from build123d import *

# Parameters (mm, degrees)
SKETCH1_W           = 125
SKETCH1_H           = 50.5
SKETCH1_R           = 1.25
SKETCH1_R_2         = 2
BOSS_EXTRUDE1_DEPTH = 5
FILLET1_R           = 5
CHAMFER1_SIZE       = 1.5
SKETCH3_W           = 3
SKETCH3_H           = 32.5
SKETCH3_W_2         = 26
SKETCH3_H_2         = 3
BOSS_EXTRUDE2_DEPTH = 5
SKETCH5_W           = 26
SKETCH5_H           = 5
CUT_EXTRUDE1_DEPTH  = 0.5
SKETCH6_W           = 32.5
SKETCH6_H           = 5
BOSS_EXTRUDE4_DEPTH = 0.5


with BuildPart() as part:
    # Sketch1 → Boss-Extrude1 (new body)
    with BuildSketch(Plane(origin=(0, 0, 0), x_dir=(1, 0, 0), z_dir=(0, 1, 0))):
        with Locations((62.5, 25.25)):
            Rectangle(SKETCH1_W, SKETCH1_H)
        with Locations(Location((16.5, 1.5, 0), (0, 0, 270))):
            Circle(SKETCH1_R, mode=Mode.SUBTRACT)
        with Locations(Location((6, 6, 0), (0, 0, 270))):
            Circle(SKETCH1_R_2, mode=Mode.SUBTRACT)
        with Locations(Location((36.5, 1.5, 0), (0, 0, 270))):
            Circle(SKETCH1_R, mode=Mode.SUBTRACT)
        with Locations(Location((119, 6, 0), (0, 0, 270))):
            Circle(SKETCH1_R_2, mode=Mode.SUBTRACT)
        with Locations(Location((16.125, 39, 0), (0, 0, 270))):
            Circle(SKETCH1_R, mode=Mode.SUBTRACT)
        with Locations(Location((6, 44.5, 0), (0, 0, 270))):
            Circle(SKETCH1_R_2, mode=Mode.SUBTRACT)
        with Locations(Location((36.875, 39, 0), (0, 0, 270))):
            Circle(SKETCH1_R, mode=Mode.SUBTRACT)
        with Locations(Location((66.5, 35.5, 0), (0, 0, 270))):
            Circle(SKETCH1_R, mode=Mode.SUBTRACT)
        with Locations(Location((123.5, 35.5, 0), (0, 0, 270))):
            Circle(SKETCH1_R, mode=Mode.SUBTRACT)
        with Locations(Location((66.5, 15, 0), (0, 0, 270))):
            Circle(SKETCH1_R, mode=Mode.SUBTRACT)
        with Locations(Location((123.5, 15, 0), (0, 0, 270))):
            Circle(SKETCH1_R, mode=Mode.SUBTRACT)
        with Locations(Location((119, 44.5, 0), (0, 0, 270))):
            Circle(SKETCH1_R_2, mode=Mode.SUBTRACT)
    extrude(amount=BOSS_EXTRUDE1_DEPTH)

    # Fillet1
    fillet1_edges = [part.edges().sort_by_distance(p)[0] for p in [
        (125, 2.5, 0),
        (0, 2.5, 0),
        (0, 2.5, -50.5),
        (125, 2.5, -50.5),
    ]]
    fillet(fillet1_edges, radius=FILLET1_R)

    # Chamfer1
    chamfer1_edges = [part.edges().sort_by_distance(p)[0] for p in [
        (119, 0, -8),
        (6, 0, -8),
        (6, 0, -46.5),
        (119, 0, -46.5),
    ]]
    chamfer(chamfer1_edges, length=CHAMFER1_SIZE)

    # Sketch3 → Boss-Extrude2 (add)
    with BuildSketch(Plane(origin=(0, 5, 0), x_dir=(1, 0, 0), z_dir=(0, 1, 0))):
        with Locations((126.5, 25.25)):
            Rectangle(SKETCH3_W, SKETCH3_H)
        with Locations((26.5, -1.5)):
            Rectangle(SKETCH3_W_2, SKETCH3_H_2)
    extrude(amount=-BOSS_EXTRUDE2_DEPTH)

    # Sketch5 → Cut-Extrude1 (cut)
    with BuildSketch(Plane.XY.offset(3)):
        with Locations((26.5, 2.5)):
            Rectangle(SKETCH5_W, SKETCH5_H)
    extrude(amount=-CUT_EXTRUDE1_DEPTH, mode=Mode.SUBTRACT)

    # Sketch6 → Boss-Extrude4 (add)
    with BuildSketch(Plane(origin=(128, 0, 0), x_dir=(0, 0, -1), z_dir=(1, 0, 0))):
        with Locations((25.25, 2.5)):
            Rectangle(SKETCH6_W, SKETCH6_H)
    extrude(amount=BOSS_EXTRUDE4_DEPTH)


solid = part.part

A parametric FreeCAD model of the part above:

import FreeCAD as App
import Part
import Sketcher
from FreeCAD import Vector
Q = App.Units.Quantity


def edges_at(feature, points):
    """Names of the edges that pass closest to the given points."""
    edges = feature.Shape.Edges
    near = lambda p: min(range(len(edges)), key=lambda i: edges[i].distToShape(Part.Vertex(*p))[0])
    return sorted({f"Edge{near(p) + 1}" for p in points})

doc = App.newDocument("Part")
params = doc.addObject("Spreadsheet::Sheet", "Params")
for row, (alias, value) in enumerate([
    ("sketch1_diameter", "4 mm"),
    ("sketch1_diameter2", "2.5 mm"),
    ("sketch1_width", "125 mm"),
    ("sketch1_height", "50.5 mm"),
    ("pad1_length", "5 mm"),
    ("fillet_radius", "5 mm"),
    ("chamfer_size", "1.5 mm"),
    ("sketch2_width", "3 mm"),
    ("sketch2_width2", "26 mm"),
    ("sketch2_height", "32.5 mm"),
    ("pad2_length", "5 mm"),
    ("sketch3_width", "26 mm"),
    ("sketch3_height", "5 mm"),
    ("pocket1_length", "0.5 mm"),
    ("sketch4_width", "5 mm"),
    ("sketch4_height", "32.5 mm"),
    ("pad3_length", "0.5 mm"),
], start=1):
    params.set(f"A{row}", alias)
    params.set(f"B{row}", "=" + value)
    params.setAlias(f"B{row}", alias)

body = doc.addObject("PartDesign::Body", "Body")

# Sketch on XZ plane
sketch1 = doc.addObject("Sketcher::SketchObject", "Sketch")
body.addObject(sketch1)
sketch1.AttachmentSupport = (doc.XZ_Plane, [""])
sketch1.MapMode = "FlatFace"
sketch1.addGeometry([
    Part.LineSegment(Vector(0, -50.5, 0), Vector(0, 0, 0)),  # 0
    Part.LineSegment(Vector(0, 0, 0), Vector(125, 0, 0)),  # 1
    Part.LineSegment(Vector(125, 0, 0), Vector(125, -50.5, 0)),  # 2
    Part.LineSegment(Vector(125, -50.5, 0), Vector(0, -50.5, 0)),  # 3
    Part.Circle(Vector(16.5, -1.5, 0), Vector(0, 0, 1), 1.2),  # 4
    Part.Circle(Vector(6, -6, 0), Vector(0, 0, 1), 2),  # 5
    Part.Circle(Vector(36.5, -1.5, 0), Vector(0, 0, 1), 1.2),  # 6
    Part.Circle(Vector(119, -6, 0), Vector(0, 0, 1), 2),  # 7
    Part.Circle(Vector(66.5, -15, 0), Vector(0, 0, 1), 1.2),  # 8
    Part.Circle(Vector(123.5, -15, 0), Vector(0, 0, 1), 1.2),  # 9
    Part.Circle(Vector(16.1, -39, 0), Vector(0, 0, 1), 1.2),  # 10
    Part.Circle(Vector(6, -44.5, 0), Vector(0, 0, 1), 2),  # 11
    Part.Circle(Vector(36.9, -39, 0), Vector(0, 0, 1), 1.2),  # 12
    Part.Circle(Vector(66.5, -35.5, 0), Vector(0, 0, 1), 1.2),  # 13
    Part.Circle(Vector(123.5, -35.5, 0), Vector(0, 0, 1), 1.2),  # 14
    Part.Circle(Vector(119, -44.5, 0), Vector(0, 0, 1), 2),  # 15
], False)
sketch1.addConstraint([
    Sketcher.Constraint("Coincident", 0, 2, 1, 1),
    Sketcher.Constraint("Coincident", 1, 2, 2, 1),
    Sketcher.Constraint("Coincident", 2, 2, 3, 1),
    Sketcher.Constraint("Coincident", 3, 2, 0, 1),
    Sketcher.Constraint("Vertical", 0),
    Sketcher.Constraint("Horizontal", 1),
    Sketcher.Constraint("Vertical", 2),
    Sketcher.Constraint("Horizontal", 3),
    Sketcher.Constraint("Coincident", 0, 2, -1, 1),
    Sketcher.Constraint("Equal", 4, 6),
    Sketcher.Constraint("Equal", 5, 7),
    Sketcher.Constraint("Equal", 6, 8),
    Sketcher.Constraint("Equal", 8, 9),
    Sketcher.Constraint("Equal", 9, 10),
    Sketcher.Constraint("Equal", 7, 11),
    Sketcher.Constraint("Equal", 10, 12),
    Sketcher.Constraint("Equal", 12, 13),
    Sketcher.Constraint("Equal", 13, 14),
    Sketcher.Constraint("Equal", 11, 15),
    Sketcher.Constraint("Horizontal", 4, 3, 6, 3),
    Sketcher.Constraint("Horizontal", 5, 3, 7, 3),
    Sketcher.Constraint("Horizontal", 8, 3, 9, 3),
    Sketcher.Constraint("Horizontal", 10, 3, 12, 3),
    Sketcher.Constraint("Horizontal", 13, 3, 14, 3),
    Sketcher.Constraint("Horizontal", 11, 3, 15, 3),
    Sketcher.Constraint("Vertical", 5, 3, 11, 3),
    Sketcher.Constraint("Vertical", 8, 3, 13, 3),
    Sketcher.Constraint("Vertical", 9, 3, 14, 3),
    Sketcher.Constraint("Vertical", 7, 3, 15, 3),
    Sketcher.Constraint("Diameter", 5, Q("4 mm")),
    Sketcher.Constraint("Diameter", 4, Q("2.5 mm")),
    Sketcher.Constraint("DistanceX", 1, 1, 1, 2, Q("125 mm")),
    Sketcher.Constraint("DistanceY", 0, 1, 0, 2, Q("50.5 mm")),
    Sketcher.Constraint("DistanceX", -1, 1, 5, 3, Q("6 mm")),
    Sketcher.Constraint("DistanceY", 5, 3, -1, 1, Q("6 mm")),
    Sketcher.Constraint("DistanceX", -1, 1, 7, 3, Q("119 mm")),
    Sketcher.Constraint("DistanceY", 8, 3, -1, 1, Q("15 mm")),
    Sketcher.Constraint("DistanceY", 10, 3, -1, 1, Q("39 mm")),
    Sketcher.Constraint("DistanceX", 4, 3, 6, 3, Q("20 mm")),
    Sketcher.Constraint("DistanceX", 6, 3, 8, 3, Q("30 mm")),
    Sketcher.Constraint("DistanceX", 8, 3, 9, 3, Q("57 mm")),
    Sketcher.Constraint("DistanceY", 11, 3, 4, 3, Q("43 mm")),
    Sketcher.Constraint("DistanceY", 13, 3, 6, 3, Q("34 mm")),
    Sketcher.Constraint("DistanceY", 2, 2, 15, 3, Q("6 mm")),
    Sketcher.Constraint("DistanceX", -1, 1, 4, 3, Q("16.5 mm")),
    Sketcher.Constraint("DistanceX", 10, 3, 12, 3, Q("20.75 mm")),
    Sketcher.Constraint("DistanceX", -1, 1, 10, 3, Q("16.125 mm")),
])
sketch1.setExpression("Constraints[29]", "Params.sketch1_diameter")
sketch1.setExpression("Constraints[30]", "Params.sketch1_diameter2")
sketch1.setExpression("Constraints[31]", "Params.sketch1_width")
sketch1.setExpression("Constraints[32]", "Params.sketch1_height")
pad1 = doc.addObject("PartDesign::Pad", "Pad")
body.addObject(pad1)
pad1.Profile = sketch1
pad1.setExpression("Length", "Params.pad1_length")
pad1.Reversed = True
doc.recompute()

fillet = doc.addObject("PartDesign::Fillet", "Fillet")
body.addObject(fillet)
fillet.Base = (pad1, edges_at(pad1, [
    (125, 2.5, 0),
    (0, 2.5, 0),
    (0, 2.5, -50.5),
    (125, 2.5, -50.5),
]))
fillet.setExpression("Radius", "Params.fillet_radius")
doc.recompute()

chamfer = doc.addObject("PartDesign::Chamfer", "Chamfer")
body.addObject(chamfer)
chamfer.Base = (fillet, edges_at(fillet, [
    (119, 0, -8),
    (6, 0, -8),
    (6, 0, -46.5),
    (119, 0, -46.5),
]))
chamfer.setExpression("Size", "Params.chamfer_size")

# Sketch on XZ plane
sketch2 = doc.addObject("Sketcher::SketchObject", "Sketch001")
body.addObject(sketch2)
sketch2.AttachmentSupport = (doc.XZ_Plane, [""])
sketch2.MapMode = "FlatFace"
sketch2.AttachmentOffset = App.Placement(Vector(0, 0, -5), App.Rotation())
sketch2.addGeometry([
    Part.LineSegment(Vector(125, -41.5, 0), Vector(125, -9, 0)),  # 0
    Part.LineSegment(Vector(125, -9, 0), Vector(128, -9, 0)),  # 1
    Part.LineSegment(Vector(128, -9, 0), Vector(128, -41.5, 0)),  # 2
    Part.LineSegment(Vector(128, -41.5, 0), Vector(125, -41.5, 0)),  # 3
    Part.LineSegment(Vector(13.5, 0, 0), Vector(13.5, 3, 0)),  # 4
    Part.LineSegment(Vector(13.5, 3, 0), Vector(39.5, 3, 0)),  # 5
    Part.LineSegment(Vector(39.5, 3, 0), Vector(39.5, 0, 0)),  # 6
    Part.LineSegment(Vector(39.5, 0, 0), Vector(13.5, 0, 0)),  # 7
], False)
sketch2.addConstraint([
    Sketcher.Constraint("Coincident", 0, 2, 1, 1),
    Sketcher.Constraint("Coincident", 1, 2, 2, 1),
    Sketcher.Constraint("Coincident", 2, 2, 3, 1),
    Sketcher.Constraint("Coincident", 3, 2, 0, 1),
    Sketcher.Constraint("Coincident", 4, 2, 5, 1),
    Sketcher.Constraint("Coincident", 5, 2, 6, 1),
    Sketcher.Constraint("Coincident", 6, 2, 7, 1),
    Sketcher.Constraint("Coincident", 7, 2, 4, 1),
    Sketcher.Constraint("Vertical", 0),
    Sketcher.Constraint("Horizontal", 1),
    Sketcher.Constraint("Vertical", 2),
    Sketcher.Constraint("Horizontal", 3),
    Sketcher.Constraint("Vertical", 4),
    Sketcher.Constraint("Horizontal", 5),
    Sketcher.Constraint("Vertical", 6),
    Sketcher.Constraint("Horizontal", 7),
    Sketcher.Constraint("PointOnObject", 6, 2, -1),
    Sketcher.Constraint("Equal", 3, 4),
    Sketcher.Constraint("DistanceX", 1, 1, 1, 2, Q("3 mm")),
    Sketcher.Constraint("DistanceX", 5, 1, 5, 2, Q("26 mm")),
    Sketcher.Constraint("DistanceY", 0, 1, 0, 2, Q("32.5 mm")),
    Sketcher.Constraint("DistanceX", -1, 1, 0, 2, Q("125 mm")),
    Sketcher.Constraint("DistanceY", 0, 2, -1, 1, Q("9 mm")),
    Sketcher.Constraint("DistanceX", -1, 1, 4, 2, Q("13.5 mm")),
])
sketch2.setExpression("Constraints[18]", "Params.sketch2_width")
sketch2.setExpression("Constraints[19]", "Params.sketch2_width2")
sketch2.setExpression("Constraints[20]", "Params.sketch2_height")
pad2 = doc.addObject("PartDesign::Pad", "Pad001")
body.addObject(pad2)
pad2.Profile = sketch2
pad2.setExpression("Length", "Params.pad2_length")

# Sketch on XY plane
sketch3 = doc.addObject("Sketcher::SketchObject", "Sketch002")
body.addObject(sketch3)
sketch3.AttachmentSupport = (doc.XY_Plane, [""])
sketch3.MapMode = "FlatFace"
sketch3.AttachmentOffset = App.Placement(Vector(0, 0, 3), App.Rotation())
sketch3.addGeometry([
    Part.LineSegment(Vector(14, 5, 0), Vector(14, 0, 0)),
    Part.LineSegment(Vector(14, 0, 0), Vector(40, 0, 0)),
    Part.LineSegment(Vector(40, 0, 0), Vector(40, 5, 0)),
    Part.LineSegment(Vector(40, 5, 0), Vector(14, 5, 0)),
], False)
sketch3.addConstraint([
    Sketcher.Constraint("Coincident", 0, 2, 1, 1),
    Sketcher.Constraint("Coincident", 1, 2, 2, 1),
    Sketcher.Constraint("Coincident", 2, 2, 3, 1),
    Sketcher.Constraint("Coincident", 3, 2, 0, 1),
    Sketcher.Constraint("Vertical", 0),
    Sketcher.Constraint("Horizontal", 1),
    Sketcher.Constraint("Vertical", 2),
    Sketcher.Constraint("Horizontal", 3),
    Sketcher.Constraint("PointOnObject", 0, 2, -1),
    Sketcher.Constraint("DistanceX", 1, 1, 1, 2, Q("26 mm")),
    Sketcher.Constraint("DistanceY", 0, 2, 0, 1, Q("5 mm")),
    Sketcher.Constraint("DistanceX", -1, 1, 0, 2, Q("13.5 mm")),
])
sketch3.setExpression("Constraints[9]", "Params.sketch3_width")
sketch3.setExpression("Constraints[10]", "Params.sketch3_height")
pocket1 = doc.addObject("PartDesign::Pocket", "Pocket")
body.addObject(pocket1)
pocket1.Profile = sketch3
pocket1.setExpression("Length", "Params.pocket1_length")

# Sketch on YZ plane
sketch4 = doc.addObject("Sketcher::SketchObject", "Sketch003")
body.addObject(sketch4)
sketch4.AttachmentSupport = (doc.YZ_Plane, [""])
sketch4.MapMode = "FlatFace"
sketch4.AttachmentOffset = App.Placement(Vector(0, 0, 128), App.Rotation())
sketch4.addGeometry([
    Part.LineSegment(Vector(5, -9, 0), Vector(0, -9, 0)),
    Part.LineSegment(Vector(0, -9, 0), Vector(0, -42, 0)),
    Part.LineSegment(Vector(0, -42, 0), Vector(5, -42, 0)),
    Part.LineSegment(Vector(5, -42, 0), Vector(5, -9, 0)),
], False)
sketch4.addConstraint([
    Sketcher.Constraint("Coincident", 0, 2, 1, 1),
    Sketcher.Constraint("Coincident", 1, 2, 2, 1),
    Sketcher.Constraint("Coincident", 2, 2, 3, 1),
    Sketcher.Constraint("Coincident", 3, 2, 0, 1),
    Sketcher.Constraint("Horizontal", 0),
    Sketcher.Constraint("Vertical", 1),
    Sketcher.Constraint("Horizontal", 2),
    Sketcher.Constraint("Vertical", 3),
    Sketcher.Constraint("PointOnObject", 0, 2, -2),
    Sketcher.Constraint("DistanceX", 0, 2, 0, 1, Q("5 mm")),
    Sketcher.Constraint("DistanceY", 1, 2, 1, 1, Q("32.5 mm")),
    Sketcher.Constraint("DistanceY", 0, 2, -1, 1, Q("9 mm")),
])
sketch4.setExpression("Constraints[9]", "Params.sketch4_width")
sketch4.setExpression("Constraints[10]", "Params.sketch4_height")
pad3 = doc.addObject("PartDesign::Pad", "Pad002")
body.addObject(pad3)
pad3.Profile = sketch4
pad3.setExpression("Length", "Params.pad3_length")

doc.recompute()
